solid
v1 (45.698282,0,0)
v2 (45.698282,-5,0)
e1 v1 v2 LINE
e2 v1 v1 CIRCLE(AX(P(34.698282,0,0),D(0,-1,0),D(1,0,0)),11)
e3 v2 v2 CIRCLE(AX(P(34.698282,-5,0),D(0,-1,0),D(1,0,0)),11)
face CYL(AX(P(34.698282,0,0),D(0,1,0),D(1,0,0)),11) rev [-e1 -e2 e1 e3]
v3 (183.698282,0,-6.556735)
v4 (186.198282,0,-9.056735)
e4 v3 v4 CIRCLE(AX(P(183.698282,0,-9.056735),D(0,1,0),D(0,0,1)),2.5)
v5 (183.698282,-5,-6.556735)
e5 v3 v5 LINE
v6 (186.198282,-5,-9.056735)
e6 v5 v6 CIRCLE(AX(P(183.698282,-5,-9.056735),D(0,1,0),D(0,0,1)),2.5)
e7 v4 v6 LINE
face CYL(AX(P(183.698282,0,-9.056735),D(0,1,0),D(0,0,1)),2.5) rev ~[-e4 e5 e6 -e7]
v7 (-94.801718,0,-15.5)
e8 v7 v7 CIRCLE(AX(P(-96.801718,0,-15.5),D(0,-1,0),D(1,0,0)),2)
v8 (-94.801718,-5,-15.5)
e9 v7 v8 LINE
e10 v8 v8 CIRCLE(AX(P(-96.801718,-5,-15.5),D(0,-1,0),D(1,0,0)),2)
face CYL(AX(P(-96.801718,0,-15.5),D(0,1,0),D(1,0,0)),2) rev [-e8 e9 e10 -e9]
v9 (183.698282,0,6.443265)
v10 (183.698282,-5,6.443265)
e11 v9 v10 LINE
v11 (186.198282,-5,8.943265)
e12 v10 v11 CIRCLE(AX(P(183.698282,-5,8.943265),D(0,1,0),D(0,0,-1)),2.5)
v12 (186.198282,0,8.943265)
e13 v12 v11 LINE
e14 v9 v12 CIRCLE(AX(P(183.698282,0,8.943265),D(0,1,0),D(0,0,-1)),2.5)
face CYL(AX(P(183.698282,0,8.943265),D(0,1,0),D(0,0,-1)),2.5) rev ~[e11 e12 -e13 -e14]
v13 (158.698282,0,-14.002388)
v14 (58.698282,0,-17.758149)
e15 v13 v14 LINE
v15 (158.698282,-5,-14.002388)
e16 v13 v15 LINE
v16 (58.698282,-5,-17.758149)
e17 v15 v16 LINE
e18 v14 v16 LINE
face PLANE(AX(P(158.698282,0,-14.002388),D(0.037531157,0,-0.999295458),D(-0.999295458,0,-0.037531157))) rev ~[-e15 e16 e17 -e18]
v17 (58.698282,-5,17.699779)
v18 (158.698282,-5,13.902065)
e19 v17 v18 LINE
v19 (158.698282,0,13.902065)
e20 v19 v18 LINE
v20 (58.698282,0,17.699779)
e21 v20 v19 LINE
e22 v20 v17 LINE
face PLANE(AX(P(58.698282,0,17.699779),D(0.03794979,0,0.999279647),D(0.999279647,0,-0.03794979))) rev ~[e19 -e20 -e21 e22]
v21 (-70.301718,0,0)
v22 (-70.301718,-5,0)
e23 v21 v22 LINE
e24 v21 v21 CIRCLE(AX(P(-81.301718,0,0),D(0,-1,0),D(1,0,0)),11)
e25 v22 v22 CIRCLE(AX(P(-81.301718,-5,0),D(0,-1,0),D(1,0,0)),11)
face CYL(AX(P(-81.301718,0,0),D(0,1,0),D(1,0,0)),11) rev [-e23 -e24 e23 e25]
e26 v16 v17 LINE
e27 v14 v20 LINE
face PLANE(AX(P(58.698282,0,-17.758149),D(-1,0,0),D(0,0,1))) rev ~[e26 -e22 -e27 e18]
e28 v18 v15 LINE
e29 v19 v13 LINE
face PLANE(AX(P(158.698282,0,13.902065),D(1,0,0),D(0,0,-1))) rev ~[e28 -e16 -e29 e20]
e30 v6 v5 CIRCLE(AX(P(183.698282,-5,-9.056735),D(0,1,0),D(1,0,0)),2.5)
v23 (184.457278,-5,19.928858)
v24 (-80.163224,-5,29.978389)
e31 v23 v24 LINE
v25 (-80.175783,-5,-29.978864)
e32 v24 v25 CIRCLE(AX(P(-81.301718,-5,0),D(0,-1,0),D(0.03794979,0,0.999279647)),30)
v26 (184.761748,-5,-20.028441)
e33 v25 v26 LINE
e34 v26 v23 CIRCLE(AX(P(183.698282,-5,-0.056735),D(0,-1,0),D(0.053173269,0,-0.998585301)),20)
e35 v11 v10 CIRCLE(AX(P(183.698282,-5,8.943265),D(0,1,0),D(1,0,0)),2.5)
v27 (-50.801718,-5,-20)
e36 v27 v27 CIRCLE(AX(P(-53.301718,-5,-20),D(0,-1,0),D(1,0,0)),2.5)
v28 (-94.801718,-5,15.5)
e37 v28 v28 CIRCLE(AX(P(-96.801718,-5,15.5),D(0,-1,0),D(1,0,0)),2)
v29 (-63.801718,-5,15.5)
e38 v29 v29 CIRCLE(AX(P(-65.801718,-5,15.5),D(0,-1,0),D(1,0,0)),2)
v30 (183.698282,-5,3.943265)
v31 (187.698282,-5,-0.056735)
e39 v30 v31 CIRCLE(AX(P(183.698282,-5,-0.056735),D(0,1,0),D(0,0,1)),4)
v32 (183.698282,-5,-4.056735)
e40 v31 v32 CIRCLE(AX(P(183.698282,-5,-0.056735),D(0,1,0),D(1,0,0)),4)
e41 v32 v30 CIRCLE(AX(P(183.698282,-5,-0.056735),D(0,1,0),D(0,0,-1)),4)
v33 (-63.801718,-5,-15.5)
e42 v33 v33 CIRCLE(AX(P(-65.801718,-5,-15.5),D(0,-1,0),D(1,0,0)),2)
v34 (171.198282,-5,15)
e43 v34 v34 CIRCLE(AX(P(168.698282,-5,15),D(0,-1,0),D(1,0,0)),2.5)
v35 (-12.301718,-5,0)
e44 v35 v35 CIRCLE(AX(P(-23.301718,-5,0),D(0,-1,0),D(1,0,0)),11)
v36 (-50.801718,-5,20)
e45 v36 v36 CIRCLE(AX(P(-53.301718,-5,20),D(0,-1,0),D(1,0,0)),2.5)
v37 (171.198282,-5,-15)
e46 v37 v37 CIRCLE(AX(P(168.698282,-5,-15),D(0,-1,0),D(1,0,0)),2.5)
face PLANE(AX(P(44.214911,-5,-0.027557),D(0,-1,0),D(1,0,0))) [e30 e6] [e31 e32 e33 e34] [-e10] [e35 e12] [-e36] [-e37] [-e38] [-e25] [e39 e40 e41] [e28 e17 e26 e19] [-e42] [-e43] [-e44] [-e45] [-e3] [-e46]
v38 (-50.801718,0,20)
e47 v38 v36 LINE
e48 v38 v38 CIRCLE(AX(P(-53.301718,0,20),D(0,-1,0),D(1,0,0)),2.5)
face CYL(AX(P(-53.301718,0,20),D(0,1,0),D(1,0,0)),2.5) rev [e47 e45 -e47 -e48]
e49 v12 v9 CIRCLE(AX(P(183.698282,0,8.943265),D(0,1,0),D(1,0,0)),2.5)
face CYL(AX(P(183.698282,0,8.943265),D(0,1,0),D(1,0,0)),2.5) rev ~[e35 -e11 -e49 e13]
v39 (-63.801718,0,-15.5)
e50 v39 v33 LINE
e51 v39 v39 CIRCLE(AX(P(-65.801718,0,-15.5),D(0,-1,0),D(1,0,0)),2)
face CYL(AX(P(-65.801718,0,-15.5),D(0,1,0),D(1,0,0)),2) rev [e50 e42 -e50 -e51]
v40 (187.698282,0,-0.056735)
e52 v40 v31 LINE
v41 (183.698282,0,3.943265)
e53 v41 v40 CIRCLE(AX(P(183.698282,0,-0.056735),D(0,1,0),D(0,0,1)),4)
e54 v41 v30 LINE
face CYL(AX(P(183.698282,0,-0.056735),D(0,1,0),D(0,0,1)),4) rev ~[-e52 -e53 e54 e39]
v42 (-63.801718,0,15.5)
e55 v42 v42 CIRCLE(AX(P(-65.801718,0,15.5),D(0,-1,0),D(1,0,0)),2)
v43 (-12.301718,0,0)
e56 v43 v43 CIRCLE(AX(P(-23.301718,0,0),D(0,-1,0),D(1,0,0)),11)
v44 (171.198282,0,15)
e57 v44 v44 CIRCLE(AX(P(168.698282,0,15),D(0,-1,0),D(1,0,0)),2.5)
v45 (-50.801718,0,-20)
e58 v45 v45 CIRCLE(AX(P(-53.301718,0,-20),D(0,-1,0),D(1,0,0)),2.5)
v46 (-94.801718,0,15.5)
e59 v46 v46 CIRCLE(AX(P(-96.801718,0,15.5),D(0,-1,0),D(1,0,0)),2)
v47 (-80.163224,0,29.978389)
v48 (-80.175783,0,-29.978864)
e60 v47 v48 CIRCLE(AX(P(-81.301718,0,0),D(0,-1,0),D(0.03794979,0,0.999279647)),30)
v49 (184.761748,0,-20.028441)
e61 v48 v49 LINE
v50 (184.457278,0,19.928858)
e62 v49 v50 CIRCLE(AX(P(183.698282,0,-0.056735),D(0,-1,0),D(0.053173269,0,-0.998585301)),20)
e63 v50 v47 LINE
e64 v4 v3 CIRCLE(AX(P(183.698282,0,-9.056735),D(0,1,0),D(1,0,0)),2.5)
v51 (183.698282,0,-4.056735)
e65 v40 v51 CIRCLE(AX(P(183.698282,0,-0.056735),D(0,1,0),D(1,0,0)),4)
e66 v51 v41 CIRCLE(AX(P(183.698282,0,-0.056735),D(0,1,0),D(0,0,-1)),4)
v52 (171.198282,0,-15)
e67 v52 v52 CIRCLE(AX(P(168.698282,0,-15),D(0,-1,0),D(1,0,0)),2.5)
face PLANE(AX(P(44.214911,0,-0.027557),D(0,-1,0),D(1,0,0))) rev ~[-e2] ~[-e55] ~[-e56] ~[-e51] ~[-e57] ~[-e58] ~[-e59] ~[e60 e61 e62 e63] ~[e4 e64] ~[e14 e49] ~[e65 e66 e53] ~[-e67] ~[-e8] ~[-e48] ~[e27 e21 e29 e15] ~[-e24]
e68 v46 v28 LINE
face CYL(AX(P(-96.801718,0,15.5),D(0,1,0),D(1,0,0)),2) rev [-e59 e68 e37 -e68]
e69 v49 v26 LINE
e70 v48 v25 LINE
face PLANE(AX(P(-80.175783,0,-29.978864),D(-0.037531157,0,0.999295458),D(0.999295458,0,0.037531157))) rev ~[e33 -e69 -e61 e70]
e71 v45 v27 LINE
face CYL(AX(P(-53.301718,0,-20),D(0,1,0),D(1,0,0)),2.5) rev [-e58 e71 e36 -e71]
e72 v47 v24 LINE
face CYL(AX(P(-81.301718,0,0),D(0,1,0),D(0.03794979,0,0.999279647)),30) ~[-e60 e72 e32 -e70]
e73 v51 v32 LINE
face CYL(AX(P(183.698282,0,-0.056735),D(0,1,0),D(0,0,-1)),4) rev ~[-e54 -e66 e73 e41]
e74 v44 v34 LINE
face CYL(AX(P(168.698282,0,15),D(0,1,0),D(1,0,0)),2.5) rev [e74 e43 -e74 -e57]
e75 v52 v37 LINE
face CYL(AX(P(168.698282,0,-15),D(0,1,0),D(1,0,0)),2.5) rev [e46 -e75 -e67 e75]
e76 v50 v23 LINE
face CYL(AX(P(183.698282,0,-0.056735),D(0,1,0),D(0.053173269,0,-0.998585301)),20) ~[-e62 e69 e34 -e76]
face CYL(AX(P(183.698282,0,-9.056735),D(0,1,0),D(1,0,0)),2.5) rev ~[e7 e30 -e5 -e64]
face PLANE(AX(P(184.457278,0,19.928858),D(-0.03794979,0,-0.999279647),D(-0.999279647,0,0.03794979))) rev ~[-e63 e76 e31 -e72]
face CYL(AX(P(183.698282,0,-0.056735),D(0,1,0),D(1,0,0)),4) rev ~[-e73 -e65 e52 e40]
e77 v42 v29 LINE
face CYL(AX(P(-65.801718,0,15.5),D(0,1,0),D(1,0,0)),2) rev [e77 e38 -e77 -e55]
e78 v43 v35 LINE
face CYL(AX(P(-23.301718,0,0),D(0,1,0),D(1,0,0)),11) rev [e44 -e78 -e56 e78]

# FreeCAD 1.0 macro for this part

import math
import FreeCAD as App
import Part
import Sketcher


def add_polygon(sketch, points):
    """Adds a closed chain of lines whose ends are joined by coincident constraints."""
    first, n = sketch.GeometryCount, len(points)
    for a, b in zip(points, points[1:] + points[:1]):
        sketch.addGeometry(Part.LineSegment(App.Vector(*a, 0), App.Vector(*b, 0)), False)
    for i in range(n):
        sketch.addConstraint(Sketcher.Constraint("Coincident", first + i, 2, first + (i + 1) % n, 1))

doc = App.newDocument("Part")
body = doc.addObject("PartDesign::Body", "Body")

sketch1 = body.newObject("Sketcher::SketchObject", "Sketch")
sketch1.AttachmentSupport = (doc.getObject("XZ_Plane"), [""])
sketch1.MapMode = "FlatFace"
sketch1.addGeometry(Part.LineSegment(App.Vector(184.5, 19.9, 0), App.Vector(-80.2, 30, 0)), False)
sketch1.addGeometry(Part.ArcOfCircle(Part.Circle(App.Vector(-81.3, 0, 0), App.Vector(0, 0, 1), 30), math.radians(88), math.radians(272)), False)
sketch1.addGeometry(Part.LineSegment(App.Vector(-80.2, -30, 0), App.Vector(184.8, -20, 0)), False)
sketch1.addGeometry(Part.ArcOfCircle(Part.Circle(App.Vector(183.7, -0.1, 0), App.Vector(0, 0, 1), 20), math.radians(-87), math.radians(88)), False)
sketch1.addGeometry(Part.Circle(App.Vector(-53.3, -20, 0), App.Vector(0, 0, 1), 2.5), False)
sketch1.addGeometry(Part.Circle(App.Vector(-96.8, -15.5, 0), App.Vector(0, 0, 1), 2), False)
sketch1.addGeometry(Part.Circle(App.Vector(-65.8, -15.5, 0), App.Vector(0, 0, 1), 2), False)
sketch1.addGeometry(Part.Circle(App.Vector(168.7, -15, 0), App.Vector(0, 0, 1), 2.5), False)
add_polygon(sketch1, [(158.7, -14), (58.7, -17.8), (58.7, 17.7), (158.7, 13.9)])
sketch1.addGeometry(Part.ArcOfCircle(Part.Circle(App.Vector(183.7, -9.1, 0), App.Vector(0, 0, 1), 2.5), math.radians(0), math.radians(90)), False)
sketch1.addGeometry(Part.ArcOfCircle(Part.Circle(App.Vector(183.7, -9.1, 0), App.Vector(0, 0, 1), 2.5), math.radians(90), math.radians(360)), False)
sketch1.addGeometry(Part.ArcOfCircle(Part.Circle(App.Vector(183.7, -0.1, 0), App.Vector(0, 0, 1), 4), math.radians(90), math.radians(270)), False)
sketch1.addGeometry(Part.ArcOfCircle(Part.Circle(App.Vector(183.7, -0.1, 0), App.Vector(0, 0, 1), 4), math.radians(0), math.radians(90)), False)
sketch1.addGeometry(Part.ArcOfCircle(Part.Circle(App.Vector(183.7, -0.1, 0), App.Vector(0, 0, 1), 4), math.radians(-90), math.radians(0)), False)
sketch1.addGeometry(Part.Circle(App.Vector(-81.3, 0, 0), App.Vector(0, 0, 1), 11), False)
sketch1.addGeometry(Part.Circle(App.Vector(-23.3, 0, 0), App.Vector(0, 0, 1), 11), False)
sketch1.addGeometry(Part.Circle(App.Vector(34.7, 0, 0), App.Vector(0, 0, 1), 11), False)
sketch1.addGeometry(Part.Circle(App.Vector(-96.8, 15.5, 0), App.Vector(0, 0, 1), 2), False)
sketch1.addGeometry(Part.Circle(App.Vector(-65.8, 15.5, 0), App.Vector(0, 0, 1), 2), False)
sketch1.addGeometry(Part.Circle(App.Vector(-53.3, 20, 0), App.Vector(0, 0, 1), 2.5), False)
sketch1.addGeometry(Part.ArcOfCircle(Part.Circle(App.Vector(183.7, 8.9, 0), App.Vector(0, 0, 1), 2.5), math.radians(0), math.radians(270)), False)
sketch1.addGeometry(Part.ArcOfCircle(Part.Circle(App.Vector(183.7, 8.9, 0), App.Vector(0, 0, 1), 2.5), math.radians(-90), math.radians(0)), False)
sketch1.addGeometry(Part.Circle(App.Vector(168.7, 15, 0), App.Vector(0, 0, 1), 2.5), False)
sketch1.addConstraint(Sketcher.Constraint("Tangent", 0, 2, 1, 1))
sketch1.addConstraint(Sketcher.Constraint("Tangent", 1, 2, 2, 1))
sketch1.addConstraint(Sketcher.Constraint("Coincident", 2, 2, 3, 1))
sketch1.addConstraint(Sketcher.Constraint("Tangent", 3, 2, 0, 1))
sketch1.addConstraint(Sketcher.Constraint("Tangent", 12, 1, 13, 2))
sketch1.addConstraint(Sketcher.Constraint("Coincident", 13, 1, 12, 2))
sketch1.addConstraint(Sketcher.Constraint("Tangent", 14, 1, 15, 2))
sketch1.addConstraint(Sketcher.Constraint("Tangent", 15, 1, 16, 2))
sketch1.addConstraint(Sketcher.Constraint("Tangent", 16, 1, 14, 2))
sketch1.addConstraint(Sketcher.Constraint("Tangent", 23, 1, 24, 2))
sketch1.addConstraint(Sketcher.Constraint("Coincident", 24, 1, 23, 2))
sketch1.addConstraint(Sketcher.Constraint("Vertical", 9))
sketch1.addConstraint(Sketcher.Constraint("Vertical", 11))
sketch1.addConstraint(Sketcher.Constraint("Coincident", 14, 3, 3, 3))
sketch1.addConstraint(Sketcher.Constraint("Coincident", 17, 3, 1, 3))
sketch1.addConstraint(Sketcher.Constraint("Equal", 5, 6))
sketch1.addConstraint(Sketcher.Constraint("Equal", 4, 7))
sketch1.addConstraint(Sketcher.Constraint("Equal", 7, 12))
sketch1.addConstraint(Sketcher.Constraint("Equal", 17, 18))
sketch1.addConstraint(Sketcher.Constraint("Equal", 18, 19))
sketch1.addConstraint(Sketcher.Constraint("Equal", 6, 20))
sketch1.addConstraint(Sketcher.Constraint("Equal", 20, 21))
sketch1.addConstraint(Sketcher.Constraint("Equal", 13, 22))
sketch1.addConstraint(Sketcher.Constraint("Equal", 22, 23))
sketch1.addConstraint(Sketcher.Constraint("Equal", 24, 25))
sketch1.addConstraint(Sketcher.Constraint("Symmetric", 5, 3, 20, 3, -1))
sketch1.addConstraint(Sketcher.Constraint("Symmetric", 6, 3, 21, 3, -1))
sketch1.addConstraint(Sketcher.Constraint("Symmetric", 4, 3, 22, 3, -1))
sketch1.addConstraint(Sketcher.Constraint("Symmetric", 7, 3, 25, 3, -1))
sketch1.addConstraint(Sketcher.Constraint("PointOnObject", 1, 3, -1))
sketch1.addConstraint(Sketcher.Constraint("PointOnObject", 18, 3, -1))
sketch1.addConstraint(Sketcher.Constraint("PointOnObject", 19, 3, -1))
sketch1.addConstraint(Sketcher.Constraint("Parallel", 2, 8))
sketch1.addConstraint(Sketcher.Constraint("Parallel", 0, 10))
sketch1.addConstraint(Sketcher.Constraint("Horizontal", 5, 3, 6, 3))
sketch1.addConstraint(Sketcher.Constraint("Horizontal", 13, 3, 12, 1))
sketch1.addConstraint(Sketcher.Constraint("Horizontal", 16, 3, 15, 1))
sketch1.addConstraint(Sketcher.Constraint("Horizontal", 24, 3, 23, 1))
sketch1.addConstraint(Sketcher.Constraint("Vertical", 3, 3, 12, 3))
sketch1.addConstraint(Sketcher.Constraint("Vertical", 16, 3, 23, 3))
sketch1.addConstraint(Sketcher.Constraint("Vertical", 24, 3, 13, 1))
sketch1.addConstraint(Sketcher.Constraint("Vertical", 13, 1, 14, 1))
sketch1.addConstraint(Sketcher.Constraint("Vertical", 14, 1, 16, 1))
sketch1.addConstraint(Sketcher.Constraint("Vertical", 16, 1, 24, 1))
sketch1.addConstraint(Sketcher.Constraint("Diameter", 4, 5.0))
sketch1.addConstraint(Sketcher.Constraint("Diameter", 5, 4.0))
sketch1.addConstraint(Sketcher.Constraint("Diameter", 17, 22.0))
sketch1.addConstraint(Sketcher.Constraint("Radius", 1, 30.0))
sketch1.addConstraint(Sketcher.Constraint("Radius", 3, 20.0))
sketch1.addConstraint(Sketcher.Constraint("Radius", 14, 4.0))
sketch1.addConstraint(Sketcher.Constraint("DistanceY", 4, 3, -1, 1, 20.0))
sketch1.addConstraint(Sketcher.Constraint("DistanceY", 7, 3, -1, 1, 15.0))
sketch1.addConstraint(Sketcher.Constraint("DistanceX", 1, 3, 3, 3, 265.0))
sketch1.addConstraint(Sketcher.Constraint("DistanceX", 1, 3, 4, 3, 28.0))
sketch1.addConstraint(Sketcher.Constraint("DistanceX", 5, 3, 6, 3, 31.0))
sketch1.addConstraint(Sketcher.Constraint("DistanceX", 7, 3, 3, 3, 15.0))
sketch1.addConstraint(Sketcher.Constraint("DistanceY", 12, 3, 3, 3, 9.0))
sketch1.addConstraint(Sketcher.Constraint("DistanceX", 4, 3, 18, 3, 30.0))
sketch1.addConstraint(Sketcher.Constraint("DistanceX", 18, 3, 19, 3, 58.0))
sketch1.addConstraint(Sketcher.Constraint("DistanceY", 5, 3, 20, 3, 31.0))
sketch1.addConstraint(Sketcher.Constraint("DistanceY", 3, 3, 23, 3, 9.0))
sketch1.addConstraint(Sketcher.Constraint("DistanceX", 19, 3, 8, 2, 24.0))
sketch1.addConstraint(Sketcher.Constraint("DistanceX", 10, 2, 25, 3, 10.0))
sketch1.addConstraint(Sketcher.Constraint("DistanceX", 5, 3, 1, 3, 15.5))
sketch1.addConstraint(Sketcher.Constraint("DistanceY", 9, 1, 9, 2, 35.457929))
sketch1.addConstraint(Sketcher.Constraint("DistanceY", 23, 3, 10, 2, 4.9588))
sketch1.addConstraint(Sketcher.Constraint("Distance", 2, 265.124322))
sketch1.addConstraint(Sketcher.Constraint("DistanceY", 2, 2, -1, 1, 20.028441))
sketch1.addConstraint(Sketcher.Constraint("DistanceX", -1, 1, 3, 2, 184.457278))
pad1 = body.newObject("PartDesign::Pad", "Pad")
pad1.Profile = sketch1
pad1.Length = 5

doc.recompute()
